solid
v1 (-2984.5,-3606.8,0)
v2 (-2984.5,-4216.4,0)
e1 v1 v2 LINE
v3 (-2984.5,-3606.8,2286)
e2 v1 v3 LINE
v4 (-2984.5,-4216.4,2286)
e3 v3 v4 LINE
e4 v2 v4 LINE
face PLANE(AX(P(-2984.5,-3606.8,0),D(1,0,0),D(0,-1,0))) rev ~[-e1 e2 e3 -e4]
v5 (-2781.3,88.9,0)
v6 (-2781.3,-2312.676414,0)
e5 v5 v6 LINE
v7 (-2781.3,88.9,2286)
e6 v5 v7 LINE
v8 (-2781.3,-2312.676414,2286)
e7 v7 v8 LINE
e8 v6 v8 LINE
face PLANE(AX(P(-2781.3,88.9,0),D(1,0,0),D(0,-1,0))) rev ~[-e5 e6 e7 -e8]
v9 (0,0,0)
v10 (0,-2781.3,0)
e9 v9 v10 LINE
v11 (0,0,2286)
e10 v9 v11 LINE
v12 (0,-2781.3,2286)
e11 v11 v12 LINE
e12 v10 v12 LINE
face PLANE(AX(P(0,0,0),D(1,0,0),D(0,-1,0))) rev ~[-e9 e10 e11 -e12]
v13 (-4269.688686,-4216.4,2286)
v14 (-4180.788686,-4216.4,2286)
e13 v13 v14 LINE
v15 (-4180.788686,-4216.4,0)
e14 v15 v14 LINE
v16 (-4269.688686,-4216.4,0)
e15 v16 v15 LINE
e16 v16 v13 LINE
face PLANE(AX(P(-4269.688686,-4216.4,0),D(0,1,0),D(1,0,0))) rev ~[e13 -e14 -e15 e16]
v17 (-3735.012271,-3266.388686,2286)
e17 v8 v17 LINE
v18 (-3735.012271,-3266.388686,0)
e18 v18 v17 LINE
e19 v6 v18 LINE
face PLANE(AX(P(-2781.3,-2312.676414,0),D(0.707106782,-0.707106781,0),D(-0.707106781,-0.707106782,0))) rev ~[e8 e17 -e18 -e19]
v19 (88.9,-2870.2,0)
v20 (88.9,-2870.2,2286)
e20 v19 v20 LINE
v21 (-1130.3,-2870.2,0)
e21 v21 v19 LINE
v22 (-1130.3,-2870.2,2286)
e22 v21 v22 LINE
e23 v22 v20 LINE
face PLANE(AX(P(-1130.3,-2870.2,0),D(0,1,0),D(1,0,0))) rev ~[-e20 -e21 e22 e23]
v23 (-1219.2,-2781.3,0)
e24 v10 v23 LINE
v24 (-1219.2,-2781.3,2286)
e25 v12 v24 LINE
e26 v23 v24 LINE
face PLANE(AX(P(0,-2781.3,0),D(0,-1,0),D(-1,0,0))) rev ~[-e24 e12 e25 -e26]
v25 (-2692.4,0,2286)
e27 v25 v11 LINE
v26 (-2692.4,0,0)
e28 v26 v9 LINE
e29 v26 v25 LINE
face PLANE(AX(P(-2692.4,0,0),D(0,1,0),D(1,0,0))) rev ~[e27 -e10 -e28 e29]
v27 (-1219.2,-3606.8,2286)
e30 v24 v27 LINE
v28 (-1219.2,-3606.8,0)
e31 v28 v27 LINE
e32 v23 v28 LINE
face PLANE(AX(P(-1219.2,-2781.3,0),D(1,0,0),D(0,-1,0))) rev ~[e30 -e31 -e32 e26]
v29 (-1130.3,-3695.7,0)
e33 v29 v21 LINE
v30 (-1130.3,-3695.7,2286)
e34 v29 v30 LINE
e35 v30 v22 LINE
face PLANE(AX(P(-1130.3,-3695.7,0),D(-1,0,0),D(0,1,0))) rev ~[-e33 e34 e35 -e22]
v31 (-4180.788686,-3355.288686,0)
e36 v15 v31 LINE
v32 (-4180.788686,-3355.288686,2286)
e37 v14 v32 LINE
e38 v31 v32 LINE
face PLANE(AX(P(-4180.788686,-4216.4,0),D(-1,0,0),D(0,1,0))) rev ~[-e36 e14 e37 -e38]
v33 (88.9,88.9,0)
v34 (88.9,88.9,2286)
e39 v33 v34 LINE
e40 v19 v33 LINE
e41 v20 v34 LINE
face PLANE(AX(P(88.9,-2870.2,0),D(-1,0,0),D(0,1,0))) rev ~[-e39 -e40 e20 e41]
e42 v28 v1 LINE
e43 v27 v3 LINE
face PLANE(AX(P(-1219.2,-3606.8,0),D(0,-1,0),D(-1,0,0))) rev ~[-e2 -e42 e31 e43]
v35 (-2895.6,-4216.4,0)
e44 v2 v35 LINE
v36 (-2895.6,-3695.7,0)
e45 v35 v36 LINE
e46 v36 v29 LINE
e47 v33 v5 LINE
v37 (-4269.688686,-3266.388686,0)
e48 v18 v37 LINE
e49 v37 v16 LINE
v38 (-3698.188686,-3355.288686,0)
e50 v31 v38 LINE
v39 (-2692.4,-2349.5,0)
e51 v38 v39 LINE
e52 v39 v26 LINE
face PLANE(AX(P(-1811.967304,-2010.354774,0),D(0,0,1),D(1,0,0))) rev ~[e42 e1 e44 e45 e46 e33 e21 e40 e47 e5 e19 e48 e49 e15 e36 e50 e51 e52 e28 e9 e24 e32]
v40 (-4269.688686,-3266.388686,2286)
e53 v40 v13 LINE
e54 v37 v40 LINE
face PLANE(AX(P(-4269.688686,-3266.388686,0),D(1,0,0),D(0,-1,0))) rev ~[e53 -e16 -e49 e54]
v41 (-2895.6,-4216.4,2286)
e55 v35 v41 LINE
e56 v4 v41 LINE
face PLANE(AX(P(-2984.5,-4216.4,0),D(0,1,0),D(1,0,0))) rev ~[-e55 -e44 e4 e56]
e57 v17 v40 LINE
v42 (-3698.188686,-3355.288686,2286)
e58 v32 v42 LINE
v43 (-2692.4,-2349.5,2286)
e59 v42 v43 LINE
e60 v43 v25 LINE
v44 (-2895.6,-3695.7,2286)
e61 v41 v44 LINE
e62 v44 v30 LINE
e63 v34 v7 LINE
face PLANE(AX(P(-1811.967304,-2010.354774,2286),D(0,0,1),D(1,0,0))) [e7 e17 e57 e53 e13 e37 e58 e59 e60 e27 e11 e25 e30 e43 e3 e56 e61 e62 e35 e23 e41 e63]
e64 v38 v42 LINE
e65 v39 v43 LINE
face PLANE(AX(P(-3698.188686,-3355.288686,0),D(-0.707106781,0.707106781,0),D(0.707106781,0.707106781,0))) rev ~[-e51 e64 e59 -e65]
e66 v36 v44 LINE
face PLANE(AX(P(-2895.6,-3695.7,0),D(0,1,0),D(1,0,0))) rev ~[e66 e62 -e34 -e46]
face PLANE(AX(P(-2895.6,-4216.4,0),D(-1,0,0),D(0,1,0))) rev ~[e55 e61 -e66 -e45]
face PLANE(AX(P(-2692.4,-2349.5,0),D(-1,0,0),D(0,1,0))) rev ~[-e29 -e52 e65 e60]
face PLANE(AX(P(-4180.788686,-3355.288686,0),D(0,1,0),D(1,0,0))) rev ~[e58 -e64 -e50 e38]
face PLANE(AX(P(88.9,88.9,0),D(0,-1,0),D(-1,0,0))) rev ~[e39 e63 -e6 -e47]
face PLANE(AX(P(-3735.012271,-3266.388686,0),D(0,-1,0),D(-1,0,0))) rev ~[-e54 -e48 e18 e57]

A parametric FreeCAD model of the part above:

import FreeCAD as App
import Part
import Sketcher
Q = App.Units.Quantity

doc = App.newDocument("Part")
body = doc.addObject("PartDesign::Body", "Body")

sketch1 = body.newObject("Sketcher::SketchObject", "Sketch")
sketch1.AttachmentSupport = (doc.getObject("XY_Plane"), [""])
sketch1.MapMode = "FlatFace"
sketch1.addGeometry([
    Part.LineSegment(App.Vector(-2692, 0, 0), App.Vector(0, 0, 0)),
    Part.LineSegment(App.Vector(0, 0, 0), App.Vector(0, -2781, 0)),
    Part.LineSegment(App.Vector(0, -2781, 0), App.Vector(-1219, -2781, 0)),
    Part.LineSegment(App.Vector(-1219, -2781, 0), App.Vector(-1219, -3607, 0)),
    Part.LineSegment(App.Vector(-1219, -3607, 0), App.Vector(-2984, -3607, 0)),
    Part.LineSegment(App.Vector(-2984, -3607, 0), App.Vector(-2984, -4216, 0)),
    Part.LineSegment(App.Vector(-2984, -4216, 0), App.Vector(-2896, -4216, 0)),
    Part.LineSegment(App.Vector(-2896, -4216, 0), App.Vector(-2896, -3696, 0)),
    Part.LineSegment(App.Vector(-2896, -3696, 0), App.Vector(-1130, -3696, 0)),
    Part.LineSegment(App.Vector(-1130, -3696, 0), App.Vector(-1130, -2870, 0)),
    Part.LineSegment(App.Vector(-1130, -2870, 0), App.Vector(89, -2870, 0)),
    Part.LineSegment(App.Vector(89, -2870, 0), App.Vector(89, 89, 0)),
    Part.LineSegment(App.Vector(89, 89, 0), App.Vector(-2781, 89, 0)),
    Part.LineSegment(App.Vector(-2781, 89, 0), App.Vector(-2781, -2313, 0)),
    Part.LineSegment(App.Vector(-2781, -2313, 0), App.Vector(-3735, -3266, 0)),
    Part.LineSegment(App.Vector(-3735, -3266, 0), App.Vector(-4270, -3266, 0)),
    Part.LineSegment(App.Vector(-4270, -3266, 0), App.Vector(-4270, -4216, 0)),
    Part.LineSegment(App.Vector(-4270, -4216, 0), App.Vector(-4181, -4216, 0)),
    Part.LineSegment(App.Vector(-4181, -4216, 0), App.Vector(-4181, -3355, 0)),
    Part.LineSegment(App.Vector(-4181, -3355, 0), App.Vector(-3698, -3355, 0)),
    Part.LineSegment(App.Vector(-3698, -3355, 0), App.Vector(-2692, -2350, 0)),
    Part.LineSegment(App.Vector(-2692, -2350, 0), App.Vector(-2692, 0, 0)),
], False)
sketch1.addConstraint([
    Sketcher.Constraint("Coincident", 0, 2, 1, 1),
    Sketcher.Constraint("Coincident", 1, 2, 2, 1),
    Sketcher.Constraint("Coincident", 2, 2, 3, 1),
    Sketcher.Constraint("Coincident", 3, 2, 4, 1),
    Sketcher.Constraint("Coincident", 4, 2, 5, 1),
    Sketcher.Constraint("Coincident", 5, 2, 6, 1),
    Sketcher.Constraint("Coincident", 6, 2, 7, 1),
    Sketcher.Constraint("Coincident", 7, 2, 8, 1),
    Sketcher.Constraint("Coincident", 8, 2, 9, 1),
    Sketcher.Constraint("Coincident", 9, 2, 10, 1),
    Sketcher.Constraint("Coincident", 10, 2, 11, 1),
    Sketcher.Constraint("Coincident", 11, 2, 12, 1),
    Sketcher.Constraint("Coincident", 12, 2, 13, 1),
    Sketcher.Constraint("Coincident", 13, 2, 14, 1),
    Sketcher.Constraint("Coincident", 14, 2, 15, 1),
    Sketcher.Constraint("Coincident", 15, 2, 16, 1),
    Sketcher.Constraint("Coincident", 16, 2, 17, 1),
    Sketcher.Constraint("Coincident", 17, 2, 18, 1),
    Sketcher.Constraint("Coincident", 18, 2, 19, 1),
    Sketcher.Constraint("Coincident", 19, 2, 20, 1),
    Sketcher.Constraint("Coincident", 20, 2, 21, 1),
    Sketcher.Constraint("Coincident", 21, 2, 0, 1),
    Sketcher.Constraint("Horizontal", 0),
    Sketcher.Constraint("Vertical", 1),
    Sketcher.Constraint("Horizontal", 2),
    Sketcher.Constraint("Vertical", 3),
    Sketcher.Constraint("Horizontal", 4),
    Sketcher.Constraint("Vertical", 5),
    Sketcher.Constraint("Horizontal", 6),
    Sketcher.Constraint("Vertical", 7),
    Sketcher.Constraint("Horizontal", 8),
    Sketcher.Constraint("Vertical", 9),
    Sketcher.Constraint("Horizontal", 10),
    Sketcher.Constraint("Vertical", 11),
    Sketcher.Constraint("Horizontal", 12),
    Sketcher.Constraint("Vertical", 13),
    Sketcher.Constraint("Horizontal", 15),
    Sketcher.Constraint("Vertical", 16),
    Sketcher.Constraint("Horizontal", 17),
    Sketcher.Constraint("Vertical", 18),
    Sketcher.Constraint("Horizontal", 19),
    Sketcher.Constraint("Vertical", 21),
    Sketcher.Constraint("Coincident", 0, 2, -1, 1),
    Sketcher.Constraint("Parallel", 14, 20),
    Sketcher.Constraint("Horizontal", 6, 2, 16, 2),
    Sketcher.Constraint("Equal", 4, 8),
    Sketcher.Constraint("Equal", 2, 10),
    Sketcher.Constraint("Equal", 6, 17),
    Sketcher.Constraint("Equal", 3, 9),
    Sketcher.Constraint("DistanceX", 0, 1, 0, 2, Q("106 in")),
    Sketcher.Constraint("DistanceX", 2, 2, 2, 1, Q("48 in")),
    Sketcher.Constraint("DistanceX", 12, 2, 12, 1, Q("113 in")),
    Sketcher.Constraint("DistanceX", 19, 1, 19, 2, Q("19 in")),
    Sketcher.Constraint("DistanceY", 5, 2, 5, 1, Q("24 in")),
    Sketcher.Constraint("Distance", 20, Q("56 in")),
    Sketcher.Constraint("DistanceX", 4, 2, 4, 1, Q("69.5 in")),
    Sketcher.Constraint("DistanceX", 6, 1, 6, 2, Q("3.5 in")),
    Sketcher.Constraint("DistanceY", 1, 2, 1, 1, Q("109.5 in")),
    Sketcher.Constraint("DistanceY", 3, 2, 3, 1, Q("32.5 in")),
    Sketcher.Constraint("DistanceY", 7, 1, 7, 2, Q("20.5 in")),
    Sketcher.Constraint("DistanceY", 11, 1, 11, 2, Q("116.5 in")),
    Sketcher.Constraint("DistanceY", 21, 1, 21, 2, Q("92.5 in")),
    Sketcher.Constraint("Angle", 14, Q("-135 deg")),
    Sketcher.Constraint("DistanceY", 18, 2, 15, 2, Q("3.5 in")),
    Sketcher.Constraint("Distance", 14, Q("1348.752829 mm")),
])
pad1 = body.newObject("PartDesign::Pad", "Pad")
pad1.Profile = sketch1
pad1.Length = Q("90 in")

doc.recompute()
